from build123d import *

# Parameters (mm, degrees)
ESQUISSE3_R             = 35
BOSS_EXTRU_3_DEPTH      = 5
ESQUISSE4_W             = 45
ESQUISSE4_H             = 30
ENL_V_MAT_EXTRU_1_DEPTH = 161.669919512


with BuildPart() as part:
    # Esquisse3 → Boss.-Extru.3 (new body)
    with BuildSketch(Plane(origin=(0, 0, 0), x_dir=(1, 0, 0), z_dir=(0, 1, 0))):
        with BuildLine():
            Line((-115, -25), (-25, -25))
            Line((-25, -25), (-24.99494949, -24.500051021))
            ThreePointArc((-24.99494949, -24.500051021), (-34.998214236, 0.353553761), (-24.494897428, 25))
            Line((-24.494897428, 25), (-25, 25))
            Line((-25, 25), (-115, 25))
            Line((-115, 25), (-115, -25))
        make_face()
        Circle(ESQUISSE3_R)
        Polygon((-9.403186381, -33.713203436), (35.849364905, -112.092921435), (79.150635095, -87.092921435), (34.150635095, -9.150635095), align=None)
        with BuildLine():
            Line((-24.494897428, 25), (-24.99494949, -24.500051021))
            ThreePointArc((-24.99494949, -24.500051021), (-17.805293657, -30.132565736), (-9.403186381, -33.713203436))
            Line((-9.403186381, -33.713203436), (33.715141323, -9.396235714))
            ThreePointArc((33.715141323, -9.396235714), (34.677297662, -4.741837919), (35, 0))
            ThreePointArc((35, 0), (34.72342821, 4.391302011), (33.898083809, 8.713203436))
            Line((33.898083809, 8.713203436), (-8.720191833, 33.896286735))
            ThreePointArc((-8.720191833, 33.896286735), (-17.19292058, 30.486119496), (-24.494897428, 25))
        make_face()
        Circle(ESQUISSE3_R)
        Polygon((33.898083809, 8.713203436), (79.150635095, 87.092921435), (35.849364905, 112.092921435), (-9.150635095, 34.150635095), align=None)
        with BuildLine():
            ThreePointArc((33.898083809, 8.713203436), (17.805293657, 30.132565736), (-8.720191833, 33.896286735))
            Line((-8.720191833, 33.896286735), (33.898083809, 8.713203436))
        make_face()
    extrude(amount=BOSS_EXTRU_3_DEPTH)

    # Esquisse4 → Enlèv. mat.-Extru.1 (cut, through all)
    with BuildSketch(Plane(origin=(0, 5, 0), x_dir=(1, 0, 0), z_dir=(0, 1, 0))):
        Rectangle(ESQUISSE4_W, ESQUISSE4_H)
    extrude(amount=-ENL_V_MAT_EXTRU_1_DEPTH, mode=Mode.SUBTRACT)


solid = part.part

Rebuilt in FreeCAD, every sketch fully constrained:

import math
import FreeCAD as App
import Part
import Sketcher
from FreeCAD import Vector
Q = App.Units.Quantity


def add_polygon(sketch, points):
    """Adds a closed chain of lines whose ends are joined by coincident constraints."""
    first, n = sketch.GeometryCount, len(points)
    for a, b in zip(points, points[1:] + points[:1]):
        sketch.addGeometry(Part.LineSegment(App.Vector(*a, 0), App.Vector(*b, 0)), False)
    for i in range(n):
        sketch.addConstraint(Sketcher.Constraint("Coincident", first + i, 2, first + (i + 1) % n, 1))

doc = App.newDocument("Part")
body = doc.addObject("PartDesign::Body", "Body")

sketch1 = doc.addObject("Sketcher::SketchObject", "Sketch")
body.addObject(sketch1)
sketch1.AttachmentSupport = (doc.XZ_Plane, [""])
sketch1.MapMode = "FlatFace"
sketch1.addGeometry([
    Part.LineSegment(Vector(-115, -25, 0), Vector(-115, 25, 0)),
    Part.LineSegment(Vector(-115, 25, 0), Vector(-25, 25, 0)),
    Part.LineSegment(Vector(-25, 25, 0), Vector(-24.994949, 24.500051, 0)),
    Part.ArcOfCircle(Part.Circle(Vector(0, 0, 0), Vector(0, 0, 1), 35), math.radians(105.584691), math.radians(135.572879)),
    Part.LineSegment(Vector(-9.403186, 33.713203, 0), Vector(35.849365, 112.092921, 0)),
    Part.LineSegment(Vector(35.849365, 112.092921, 0), Vector(79.150635, 87.092921, 0)),
    Part.LineSegment(Vector(79.150635, 87.092921, 0), Vector(34.150635, 9.150635, 0)),
    Part.LineSegment(Vector(34.150635, 9.150635, 0), Vector(33.715141, 9.396236, 0)),
    Part.ArcOfCircle(Part.Circle(Vector(0, 0, 0), Vector(0, 0, 1), 35), math.radians(0), math.radians(15.572879)),
    Part.ArcOfCircle(Part.Circle(Vector(0, 0, 0), Vector(0, 0, 1), 35), math.radians(-14.415309), math.radians(0)),
    Part.LineSegment(Vector(33.898084, -8.713203, 0), Vector(79.150635, -87.092921, 0)),
    Part.LineSegment(Vector(79.150635, -87.092921, 0), Vector(35.849365, -112.092921, 0)),
    Part.LineSegment(Vector(35.849365, -112.092921, 0), Vector(-9.150635, -34.150635, 0)),
    Part.LineSegment(Vector(-9.150635, -34.150635, 0), Vector(-8.720192, -33.896287, 0)),
    Part.ArcOfCircle(Part.Circle(Vector(0, 0, 0), Vector(0, 0, 1), 35), math.radians(-134.415309), math.radians(-104.427121)),
    Part.LineSegment(Vector(-24.494897, -25, 0), Vector(-115, -25, 0)),
], False)
sketch1.addConstraint([
    Sketcher.Constraint("Coincident", 0, 2, 1, 1),
    Sketcher.Constraint("Coincident", 1, 2, 2, 1),
    Sketcher.Constraint("Coincident", 2, 2, 3, 2),
    Sketcher.Constraint("Coincident", 3, 1, 4, 1),
    Sketcher.Constraint("Coincident", 4, 2, 5, 1),
    Sketcher.Constraint("Coincident", 5, 2, 6, 1),
    Sketcher.Constraint("Coincident", 6, 2, 7, 1),
    Sketcher.Constraint("Coincident", 7, 2, 8, 2),
    Sketcher.Constraint("Tangent", 8, 1, 9, 2),
    Sketcher.Constraint("Coincident", 9, 1, 10, 1),
    Sketcher.Constraint("Coincident", 10, 2, 11, 1),
    Sketcher.Constraint("Coincident", 11, 2, 12, 1),
    Sketcher.Constraint("Coincident", 12, 2, 13, 1),
    Sketcher.Constraint("Coincident", 13, 2, 14, 2),
    Sketcher.Constraint("Coincident", 14, 1, 15, 1),
    Sketcher.Constraint("Coincident", 15, 2, 0, 1),
    Sketcher.Constraint("Vertical", 0),
    Sketcher.Constraint("Horizontal", 1),
    Sketcher.Constraint("Horizontal", 15),
    Sketcher.Constraint("Coincident", 3, 3, -1, 1),
    Sketcher.Constraint("Coincident", 8, 3, -1, 1),
    Sketcher.Constraint("Coincident", 14, 3, -1, 1),
    Sketcher.Constraint("Equal", 3, 8),
    Sketcher.Constraint("Equal", 8, 9),
    Sketcher.Constraint("Equal", 9, 14),
    Sketcher.Constraint("Symmetric", 5, 2, 10, 2, -1),
    Sketcher.Constraint("Symmetric", 4, 2, 11, 2, -1),
    Sketcher.Constraint("PointOnObject", 8, 1, -1),
    Sketcher.Constraint("Perpendicular", 4, 5),
    Sketcher.Constraint("Perpendicular", 5, 6),
    Sketcher.Constraint("Perpendicular", 10, 11),
    Sketcher.Constraint("Perpendicular", 11, 12),
    Sketcher.Constraint("Equal", 2, 7),
    Sketcher.Constraint("Equal", 4, 10),
    Sketcher.Constraint("Equal", 6, 12),
    Sketcher.Constraint("Equal", 7, 13),
    Sketcher.Constraint("Radius", 3, 35.0),
    Sketcher.Constraint("DistanceX", 1, 1, 1, 2, 90.0),
    Sketcher.Constraint("DistanceY", 0, 1, 0, 2, 50.0),
    Sketcher.Constraint("Angle", 4, Q("60 deg")),
    Sketcher.Constraint("Distance", 5, 50.0),
    Sketcher.Constraint("Distance", 6, 90.0),
    Sketcher.Constraint("DistanceX", 0, 2, -1, 1, 115.0),
    Sketcher.Constraint("DistanceY", -1, 1, 0, 2, 25.0),
    Sketcher.Constraint("DistanceY", 6, 2, 7, 2, 0.245601),
    Sketcher.Constraint("DistanceX", 2, 2, -1, 1, 24.994949),
])
pad1 = doc.addObject("PartDesign::Pad", "Pad")
body.addObject(pad1)
pad1.Profile = sketch1
pad1.Length = 5
pad1.Reversed = True

sketch2 = doc.addObject("Sketcher::SketchObject", "Sketch001")
body.addObject(sketch2)
sketch2.AttachmentSupport = (doc.XZ_Plane, [""])
sketch2.MapMode = "FlatFace"
sketch2.AttachmentOffset = App.Placement(Vector(0, 0, -5), App.Rotation())
add_polygon(sketch2, [(-22.5, -15), (-22.5, 15), (22.5, 15), (22.5, -15)])
sketch2.addConstraint([
    Sketcher.Constraint("Vertical", 0),
    Sketcher.Constraint("Horizontal", 1),
    Sketcher.Constraint("Vertical", 2),
    Sketcher.Constraint("Horizontal", 3),
    Sketcher.Constraint("Symmetric", 0, 2, 2, 2, -1, 1),
    Sketcher.Constraint("DistanceX", 1, 1, 1, 2, 45.0),
    Sketcher.Constraint("DistanceY", 0, 1, 0, 2, 30.0),
])
pocket1 = doc.addObject("PartDesign::Pocket", "Pocket")
body.addObject(pocket1)
pocket1.Profile = sketch2
pocket1.Type = "ThroughAll"
pocket1.Reversed = True

doc.recompute()
